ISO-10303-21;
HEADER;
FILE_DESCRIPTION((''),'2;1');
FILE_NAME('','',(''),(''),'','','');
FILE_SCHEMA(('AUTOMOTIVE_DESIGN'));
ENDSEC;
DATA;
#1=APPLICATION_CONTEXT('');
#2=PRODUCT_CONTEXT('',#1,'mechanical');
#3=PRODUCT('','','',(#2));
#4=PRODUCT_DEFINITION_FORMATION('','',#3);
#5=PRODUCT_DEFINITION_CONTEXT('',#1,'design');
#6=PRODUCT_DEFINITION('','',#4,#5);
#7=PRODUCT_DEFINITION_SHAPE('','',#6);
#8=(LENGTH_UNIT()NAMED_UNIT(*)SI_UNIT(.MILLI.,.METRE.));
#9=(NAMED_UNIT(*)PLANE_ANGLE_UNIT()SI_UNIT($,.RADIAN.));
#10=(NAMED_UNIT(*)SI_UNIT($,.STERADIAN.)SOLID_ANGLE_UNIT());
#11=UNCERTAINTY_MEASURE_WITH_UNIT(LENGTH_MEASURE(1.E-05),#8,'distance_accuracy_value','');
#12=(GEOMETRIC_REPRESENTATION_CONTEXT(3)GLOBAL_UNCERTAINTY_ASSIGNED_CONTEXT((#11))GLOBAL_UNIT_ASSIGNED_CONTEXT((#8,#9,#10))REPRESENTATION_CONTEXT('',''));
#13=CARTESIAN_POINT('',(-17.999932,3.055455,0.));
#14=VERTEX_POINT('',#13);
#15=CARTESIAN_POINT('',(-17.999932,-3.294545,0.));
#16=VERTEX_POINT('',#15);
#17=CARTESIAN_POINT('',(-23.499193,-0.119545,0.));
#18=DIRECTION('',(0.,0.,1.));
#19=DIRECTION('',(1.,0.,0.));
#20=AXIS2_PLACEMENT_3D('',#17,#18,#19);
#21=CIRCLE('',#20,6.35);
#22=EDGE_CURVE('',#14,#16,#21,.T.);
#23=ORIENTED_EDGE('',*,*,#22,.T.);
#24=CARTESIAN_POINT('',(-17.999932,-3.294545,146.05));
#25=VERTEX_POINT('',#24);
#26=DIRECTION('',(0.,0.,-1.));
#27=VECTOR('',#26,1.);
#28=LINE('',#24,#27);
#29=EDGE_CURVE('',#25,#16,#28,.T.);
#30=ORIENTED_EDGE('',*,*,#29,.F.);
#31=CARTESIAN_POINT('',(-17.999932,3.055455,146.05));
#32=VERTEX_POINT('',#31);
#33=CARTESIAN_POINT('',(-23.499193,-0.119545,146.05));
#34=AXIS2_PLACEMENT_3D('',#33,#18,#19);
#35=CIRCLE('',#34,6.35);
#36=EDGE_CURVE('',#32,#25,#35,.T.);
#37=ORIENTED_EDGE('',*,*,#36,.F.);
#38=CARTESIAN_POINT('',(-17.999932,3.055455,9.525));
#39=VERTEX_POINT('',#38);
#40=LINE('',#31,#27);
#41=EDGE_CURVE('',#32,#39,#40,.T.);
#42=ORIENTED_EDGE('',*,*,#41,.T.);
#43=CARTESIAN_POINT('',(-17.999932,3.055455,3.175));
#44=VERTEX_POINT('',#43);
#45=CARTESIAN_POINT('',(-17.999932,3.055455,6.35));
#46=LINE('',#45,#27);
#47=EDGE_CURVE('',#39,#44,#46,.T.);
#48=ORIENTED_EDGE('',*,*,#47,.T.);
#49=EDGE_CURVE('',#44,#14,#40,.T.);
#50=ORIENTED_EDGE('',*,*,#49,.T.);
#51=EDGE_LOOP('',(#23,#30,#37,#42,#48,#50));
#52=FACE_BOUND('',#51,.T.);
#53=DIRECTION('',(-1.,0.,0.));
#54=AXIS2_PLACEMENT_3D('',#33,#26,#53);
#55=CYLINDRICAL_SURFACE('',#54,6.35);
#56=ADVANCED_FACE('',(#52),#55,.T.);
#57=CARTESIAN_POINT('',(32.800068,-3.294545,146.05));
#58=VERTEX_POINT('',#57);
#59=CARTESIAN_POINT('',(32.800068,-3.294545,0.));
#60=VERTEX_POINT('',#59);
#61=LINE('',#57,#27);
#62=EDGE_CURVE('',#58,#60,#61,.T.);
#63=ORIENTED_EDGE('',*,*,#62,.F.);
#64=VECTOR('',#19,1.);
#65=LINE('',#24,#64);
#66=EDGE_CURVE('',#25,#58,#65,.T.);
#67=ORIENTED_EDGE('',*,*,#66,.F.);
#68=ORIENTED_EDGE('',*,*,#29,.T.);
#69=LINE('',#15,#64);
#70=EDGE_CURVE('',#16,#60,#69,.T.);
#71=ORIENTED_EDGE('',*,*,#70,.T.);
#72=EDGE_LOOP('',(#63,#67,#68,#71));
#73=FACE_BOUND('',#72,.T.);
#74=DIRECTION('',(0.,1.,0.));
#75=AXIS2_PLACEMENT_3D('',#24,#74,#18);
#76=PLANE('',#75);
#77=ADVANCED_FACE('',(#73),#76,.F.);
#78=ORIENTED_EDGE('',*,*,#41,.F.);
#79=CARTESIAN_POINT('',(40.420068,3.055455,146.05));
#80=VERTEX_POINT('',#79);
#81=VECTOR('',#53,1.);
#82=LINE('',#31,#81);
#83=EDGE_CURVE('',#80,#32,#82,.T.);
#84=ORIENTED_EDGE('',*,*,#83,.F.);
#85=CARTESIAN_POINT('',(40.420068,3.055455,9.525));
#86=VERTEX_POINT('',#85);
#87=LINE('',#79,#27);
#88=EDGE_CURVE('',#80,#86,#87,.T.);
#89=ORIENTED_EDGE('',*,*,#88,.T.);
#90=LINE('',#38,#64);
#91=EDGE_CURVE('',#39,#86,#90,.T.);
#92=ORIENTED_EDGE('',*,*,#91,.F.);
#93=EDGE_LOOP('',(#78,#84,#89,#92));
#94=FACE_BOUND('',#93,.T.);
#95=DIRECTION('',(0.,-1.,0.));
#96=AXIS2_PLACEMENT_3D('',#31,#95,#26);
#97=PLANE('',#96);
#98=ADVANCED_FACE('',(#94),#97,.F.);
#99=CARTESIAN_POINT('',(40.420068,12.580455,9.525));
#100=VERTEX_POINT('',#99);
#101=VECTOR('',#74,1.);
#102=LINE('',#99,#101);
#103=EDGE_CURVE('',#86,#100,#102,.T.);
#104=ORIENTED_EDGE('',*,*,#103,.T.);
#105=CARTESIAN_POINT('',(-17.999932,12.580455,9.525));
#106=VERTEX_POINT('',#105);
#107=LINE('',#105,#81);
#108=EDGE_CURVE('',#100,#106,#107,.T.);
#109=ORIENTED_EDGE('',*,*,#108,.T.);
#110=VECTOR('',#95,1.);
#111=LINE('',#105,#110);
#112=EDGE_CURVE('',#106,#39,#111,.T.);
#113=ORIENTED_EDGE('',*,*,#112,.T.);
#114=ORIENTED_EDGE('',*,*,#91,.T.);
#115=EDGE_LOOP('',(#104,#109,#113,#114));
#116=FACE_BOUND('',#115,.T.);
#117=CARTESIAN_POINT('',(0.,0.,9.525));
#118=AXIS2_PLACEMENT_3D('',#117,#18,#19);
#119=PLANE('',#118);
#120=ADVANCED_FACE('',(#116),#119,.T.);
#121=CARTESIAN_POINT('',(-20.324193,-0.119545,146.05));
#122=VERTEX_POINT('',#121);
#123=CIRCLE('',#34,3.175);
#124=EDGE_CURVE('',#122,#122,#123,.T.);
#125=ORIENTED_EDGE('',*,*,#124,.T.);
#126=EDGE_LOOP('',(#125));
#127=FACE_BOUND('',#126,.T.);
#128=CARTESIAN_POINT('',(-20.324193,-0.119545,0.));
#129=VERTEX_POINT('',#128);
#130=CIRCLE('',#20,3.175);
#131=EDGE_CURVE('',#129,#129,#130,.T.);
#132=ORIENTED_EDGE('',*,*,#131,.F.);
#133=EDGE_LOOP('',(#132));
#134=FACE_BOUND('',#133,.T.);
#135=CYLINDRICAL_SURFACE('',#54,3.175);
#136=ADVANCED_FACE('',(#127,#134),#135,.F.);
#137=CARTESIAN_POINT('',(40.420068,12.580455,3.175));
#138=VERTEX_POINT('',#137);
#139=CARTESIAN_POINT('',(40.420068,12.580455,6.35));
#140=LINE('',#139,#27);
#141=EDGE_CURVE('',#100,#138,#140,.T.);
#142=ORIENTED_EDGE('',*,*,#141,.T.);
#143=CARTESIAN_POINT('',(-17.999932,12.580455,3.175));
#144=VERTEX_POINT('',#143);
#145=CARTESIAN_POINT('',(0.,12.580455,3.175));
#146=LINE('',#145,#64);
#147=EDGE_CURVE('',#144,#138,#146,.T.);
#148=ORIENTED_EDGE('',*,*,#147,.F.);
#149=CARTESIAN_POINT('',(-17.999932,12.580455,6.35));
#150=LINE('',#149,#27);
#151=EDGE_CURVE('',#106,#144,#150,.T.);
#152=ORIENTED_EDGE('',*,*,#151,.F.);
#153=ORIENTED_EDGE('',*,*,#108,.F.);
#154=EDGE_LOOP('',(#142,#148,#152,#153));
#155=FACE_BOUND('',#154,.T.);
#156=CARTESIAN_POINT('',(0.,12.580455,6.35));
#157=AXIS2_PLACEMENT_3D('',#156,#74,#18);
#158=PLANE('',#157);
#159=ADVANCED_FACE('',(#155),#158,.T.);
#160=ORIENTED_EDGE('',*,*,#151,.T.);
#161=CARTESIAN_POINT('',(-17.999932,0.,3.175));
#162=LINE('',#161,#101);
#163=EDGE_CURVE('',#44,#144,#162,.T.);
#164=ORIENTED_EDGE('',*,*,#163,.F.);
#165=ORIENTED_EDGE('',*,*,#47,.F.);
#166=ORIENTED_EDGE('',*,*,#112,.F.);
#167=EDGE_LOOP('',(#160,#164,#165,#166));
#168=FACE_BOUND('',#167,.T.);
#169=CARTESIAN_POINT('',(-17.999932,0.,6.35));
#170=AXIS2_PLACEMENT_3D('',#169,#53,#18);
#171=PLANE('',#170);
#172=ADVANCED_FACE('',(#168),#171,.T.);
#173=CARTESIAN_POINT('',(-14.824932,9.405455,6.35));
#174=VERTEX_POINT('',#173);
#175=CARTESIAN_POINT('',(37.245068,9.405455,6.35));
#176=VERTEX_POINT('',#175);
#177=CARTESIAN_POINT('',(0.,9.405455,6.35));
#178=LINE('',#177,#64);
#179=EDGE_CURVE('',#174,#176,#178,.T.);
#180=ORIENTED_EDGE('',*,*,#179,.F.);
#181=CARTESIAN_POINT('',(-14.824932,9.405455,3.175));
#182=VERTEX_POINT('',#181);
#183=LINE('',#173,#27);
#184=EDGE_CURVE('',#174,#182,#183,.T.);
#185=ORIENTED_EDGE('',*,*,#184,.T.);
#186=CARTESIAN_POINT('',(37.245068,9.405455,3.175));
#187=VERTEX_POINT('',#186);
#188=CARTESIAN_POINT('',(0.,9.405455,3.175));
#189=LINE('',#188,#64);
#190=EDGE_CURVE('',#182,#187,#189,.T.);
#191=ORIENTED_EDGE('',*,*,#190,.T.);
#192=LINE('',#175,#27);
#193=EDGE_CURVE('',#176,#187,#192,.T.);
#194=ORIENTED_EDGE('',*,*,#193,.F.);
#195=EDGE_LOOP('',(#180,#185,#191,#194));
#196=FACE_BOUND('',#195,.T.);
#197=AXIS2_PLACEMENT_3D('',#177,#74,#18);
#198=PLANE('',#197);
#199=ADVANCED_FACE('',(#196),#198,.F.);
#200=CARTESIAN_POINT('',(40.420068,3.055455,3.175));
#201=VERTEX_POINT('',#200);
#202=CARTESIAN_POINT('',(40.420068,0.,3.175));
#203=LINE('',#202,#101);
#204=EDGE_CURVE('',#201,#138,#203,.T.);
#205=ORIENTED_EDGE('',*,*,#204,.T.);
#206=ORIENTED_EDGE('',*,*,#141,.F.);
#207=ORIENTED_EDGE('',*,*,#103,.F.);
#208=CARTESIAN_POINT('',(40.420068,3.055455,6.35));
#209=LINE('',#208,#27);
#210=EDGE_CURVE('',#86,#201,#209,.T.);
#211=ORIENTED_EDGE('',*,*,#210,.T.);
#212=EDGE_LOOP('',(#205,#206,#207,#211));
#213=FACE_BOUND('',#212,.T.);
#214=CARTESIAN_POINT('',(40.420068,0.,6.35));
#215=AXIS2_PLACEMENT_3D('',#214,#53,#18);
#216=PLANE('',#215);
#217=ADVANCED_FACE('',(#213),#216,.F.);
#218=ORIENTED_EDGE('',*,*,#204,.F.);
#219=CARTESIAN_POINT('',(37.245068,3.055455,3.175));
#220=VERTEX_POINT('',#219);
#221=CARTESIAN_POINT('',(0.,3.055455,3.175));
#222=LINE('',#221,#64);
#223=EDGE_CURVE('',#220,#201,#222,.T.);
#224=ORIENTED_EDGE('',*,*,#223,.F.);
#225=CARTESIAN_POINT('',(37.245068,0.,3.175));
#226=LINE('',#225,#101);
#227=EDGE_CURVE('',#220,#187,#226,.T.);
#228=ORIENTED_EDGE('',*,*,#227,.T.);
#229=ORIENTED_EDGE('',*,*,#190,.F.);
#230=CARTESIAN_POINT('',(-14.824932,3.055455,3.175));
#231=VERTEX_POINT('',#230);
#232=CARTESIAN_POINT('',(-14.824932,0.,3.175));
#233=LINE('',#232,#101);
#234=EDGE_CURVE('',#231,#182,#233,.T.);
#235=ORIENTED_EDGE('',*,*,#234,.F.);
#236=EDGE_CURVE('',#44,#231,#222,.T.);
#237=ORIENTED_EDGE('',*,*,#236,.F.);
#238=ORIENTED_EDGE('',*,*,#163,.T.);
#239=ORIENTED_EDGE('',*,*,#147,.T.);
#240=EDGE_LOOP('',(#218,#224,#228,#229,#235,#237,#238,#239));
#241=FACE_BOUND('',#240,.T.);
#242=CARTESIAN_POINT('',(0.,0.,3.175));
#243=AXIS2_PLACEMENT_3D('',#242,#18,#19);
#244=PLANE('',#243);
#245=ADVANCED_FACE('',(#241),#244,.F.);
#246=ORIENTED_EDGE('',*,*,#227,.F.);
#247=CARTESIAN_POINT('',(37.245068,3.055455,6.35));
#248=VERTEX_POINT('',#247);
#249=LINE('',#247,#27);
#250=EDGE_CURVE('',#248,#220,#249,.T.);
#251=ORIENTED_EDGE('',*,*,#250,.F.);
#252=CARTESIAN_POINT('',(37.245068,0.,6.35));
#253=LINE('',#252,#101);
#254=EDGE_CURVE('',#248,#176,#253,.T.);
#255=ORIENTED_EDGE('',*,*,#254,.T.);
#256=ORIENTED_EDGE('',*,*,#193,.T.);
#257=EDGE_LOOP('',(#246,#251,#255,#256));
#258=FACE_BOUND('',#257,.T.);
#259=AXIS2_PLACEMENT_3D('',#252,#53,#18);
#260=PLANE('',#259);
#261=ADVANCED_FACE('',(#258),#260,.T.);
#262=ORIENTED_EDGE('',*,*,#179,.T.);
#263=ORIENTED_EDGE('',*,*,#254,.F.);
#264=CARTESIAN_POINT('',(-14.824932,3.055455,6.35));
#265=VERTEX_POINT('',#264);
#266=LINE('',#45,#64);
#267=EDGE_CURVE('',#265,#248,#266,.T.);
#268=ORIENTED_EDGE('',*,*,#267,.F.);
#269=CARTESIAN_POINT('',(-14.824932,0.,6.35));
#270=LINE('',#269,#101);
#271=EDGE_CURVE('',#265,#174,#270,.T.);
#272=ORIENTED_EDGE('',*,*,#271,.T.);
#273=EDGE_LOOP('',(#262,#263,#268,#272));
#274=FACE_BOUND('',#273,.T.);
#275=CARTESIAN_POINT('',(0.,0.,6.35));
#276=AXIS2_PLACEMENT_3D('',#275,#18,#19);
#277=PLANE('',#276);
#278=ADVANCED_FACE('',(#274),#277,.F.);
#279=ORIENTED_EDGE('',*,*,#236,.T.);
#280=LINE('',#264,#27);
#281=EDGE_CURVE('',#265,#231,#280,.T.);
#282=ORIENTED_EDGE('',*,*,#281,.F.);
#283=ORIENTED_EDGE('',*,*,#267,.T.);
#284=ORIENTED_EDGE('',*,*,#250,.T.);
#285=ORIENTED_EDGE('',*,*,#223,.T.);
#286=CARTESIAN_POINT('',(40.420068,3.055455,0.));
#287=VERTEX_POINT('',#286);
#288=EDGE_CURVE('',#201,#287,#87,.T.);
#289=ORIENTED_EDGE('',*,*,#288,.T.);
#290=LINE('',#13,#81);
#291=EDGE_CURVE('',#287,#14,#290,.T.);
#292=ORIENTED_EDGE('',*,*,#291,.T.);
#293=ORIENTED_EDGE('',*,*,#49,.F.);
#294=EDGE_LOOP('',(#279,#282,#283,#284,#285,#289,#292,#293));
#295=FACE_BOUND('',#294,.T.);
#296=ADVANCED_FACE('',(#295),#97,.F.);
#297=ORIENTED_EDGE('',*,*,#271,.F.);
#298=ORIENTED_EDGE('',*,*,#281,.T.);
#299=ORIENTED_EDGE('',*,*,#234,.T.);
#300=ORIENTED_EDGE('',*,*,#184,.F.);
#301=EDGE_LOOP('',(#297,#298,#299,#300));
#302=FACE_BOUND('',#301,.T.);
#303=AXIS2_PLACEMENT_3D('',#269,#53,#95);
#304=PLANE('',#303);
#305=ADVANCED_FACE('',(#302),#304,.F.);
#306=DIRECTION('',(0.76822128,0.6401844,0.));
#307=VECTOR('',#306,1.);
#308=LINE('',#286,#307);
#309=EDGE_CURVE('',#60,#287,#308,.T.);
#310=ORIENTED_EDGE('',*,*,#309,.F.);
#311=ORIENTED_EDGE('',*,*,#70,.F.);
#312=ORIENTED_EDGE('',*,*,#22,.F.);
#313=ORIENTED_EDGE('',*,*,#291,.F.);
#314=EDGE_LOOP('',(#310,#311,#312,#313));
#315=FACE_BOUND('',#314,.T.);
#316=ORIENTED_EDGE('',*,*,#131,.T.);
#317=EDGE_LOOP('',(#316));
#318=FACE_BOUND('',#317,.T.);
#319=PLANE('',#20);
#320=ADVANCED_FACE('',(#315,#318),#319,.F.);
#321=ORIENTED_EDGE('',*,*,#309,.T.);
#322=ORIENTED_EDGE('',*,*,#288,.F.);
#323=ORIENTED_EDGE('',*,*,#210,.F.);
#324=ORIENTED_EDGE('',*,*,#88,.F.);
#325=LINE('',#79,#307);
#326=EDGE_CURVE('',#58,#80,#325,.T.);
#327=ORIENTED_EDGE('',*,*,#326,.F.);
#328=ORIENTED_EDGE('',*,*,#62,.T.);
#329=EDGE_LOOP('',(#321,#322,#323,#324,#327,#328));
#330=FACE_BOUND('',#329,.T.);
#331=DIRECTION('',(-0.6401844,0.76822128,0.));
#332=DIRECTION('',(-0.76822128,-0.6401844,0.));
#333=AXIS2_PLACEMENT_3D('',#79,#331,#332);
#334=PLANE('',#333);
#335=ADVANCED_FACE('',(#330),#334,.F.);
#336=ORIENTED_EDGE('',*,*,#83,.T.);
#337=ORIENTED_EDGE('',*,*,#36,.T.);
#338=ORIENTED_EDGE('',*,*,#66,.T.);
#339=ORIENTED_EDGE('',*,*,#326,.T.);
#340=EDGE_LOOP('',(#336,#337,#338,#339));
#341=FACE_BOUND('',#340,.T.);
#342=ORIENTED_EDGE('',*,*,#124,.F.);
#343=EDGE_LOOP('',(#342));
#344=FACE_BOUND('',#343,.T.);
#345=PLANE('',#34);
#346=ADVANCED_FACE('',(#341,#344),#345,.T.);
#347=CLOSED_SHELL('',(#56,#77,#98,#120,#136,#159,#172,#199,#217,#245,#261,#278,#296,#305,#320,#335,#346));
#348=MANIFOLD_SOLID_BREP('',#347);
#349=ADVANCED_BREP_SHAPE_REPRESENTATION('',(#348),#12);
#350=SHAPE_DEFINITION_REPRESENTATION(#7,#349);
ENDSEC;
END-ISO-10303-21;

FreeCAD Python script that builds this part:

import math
import FreeCAD as App
import Part
import Sketcher

V = App.Vector
Q = App.Units.Quantity

doc = App.newDocument("Part")
body = doc.addObject("PartDesign::Body", "Body")

# Sketch on XY plane
sketch1 = body.newObject("Sketcher::SketchObject", "Sketch")
sketch1.AttachmentSupport = (doc.getObject("XY_Plane"), [""])
sketch1.MapMode = "FlatFace"
sketch1.addGeometry(Part.LineSegment(V(32.8, -3.3, 0), V(40.4, 3.1, 0)), False)
sketch1.addGeometry(Part.LineSegment(V(40.4, 3.1, 0), V(-18, 3.1, 0)), False)
sketch1.addGeometry(Part.ArcOfCircle(Part.Circle(V(-23.5, -0.1, 0), V(0, 0, 1), 6.3), math.radians(30), math.radians(330)), False)
sketch1.addGeometry(Part.LineSegment(V(-18, -3.3, 0), V(32.8, -3.3, 0)), False)
sketch1.addGeometry(Part.Circle(V(-23.5, -0.1, 0), V(0, 0, 1), 3.2), False)
sketch1.addConstraint(Sketcher.Constraint("Coincident", 0, 2, 1, 1))
sketch1.addConstraint(Sketcher.Constraint("Coincident", 1, 2, 2, 1))
sketch1.addConstraint(Sketcher.Constraint("Coincident", 2, 2, 3, 1))
sketch1.addConstraint(Sketcher.Constraint("Coincident", 3, 2, 0, 1))
sketch1.addConstraint(Sketcher.Constraint("Horizontal", 1))
sketch1.addConstraint(Sketcher.Constraint("Horizontal", 3))
sketch1.addConstraint(Sketcher.Constraint("Coincident", 4, 3, 2, 3))
sketch1.addConstraint(Sketcher.Constraint("Vertical", 1, 2, 2, 2))
sketch1.addConstraint(Sketcher.Constraint("Diameter", 4, Q("0.25 in")))
sketch1.addConstraint(Sketcher.Constraint("DistanceX", 3, 1, 3, 2, Q("2 in")))
sketch1.addConstraint(Sketcher.Constraint("Radius", 2, Q("0.25 in")))
sketch1.addConstraint(Sketcher.Constraint("DistanceX", 1, 2, 1, 1, Q("2.3 in")))
sketch1.addConstraint(Sketcher.Constraint("DistanceY", 2, 2, 1, 2, Q("0.25 in")))
sketch1.addConstraint(Sketcher.Constraint("DistanceX", -1, 1, 0, 2, Q("40.420068 mm")))
sketch1.addConstraint(Sketcher.Constraint("DistanceY", 2, 3, -1, 1, Q("0.119545 mm")))
pad1 = body.newObject("PartDesign::Pad", "Pad")
pad1.Profile = sketch1
pad1.Length = Q("5.75 in")

# Sketch on XY plane
sketch2 = body.newObject("Sketcher::SketchObject", "Sketch001")
sketch2.AttachmentSupport = (doc.getObject("XY_Plane"), [""])
sketch2.MapMode = "FlatFace"
sketch2.AttachmentOffset = App.Placement(V(0, 0, 0.125 * 25.4), App.Rotation())
sketch2.addGeometry(Part.LineSegment(V(-18, 3.1, 0), V(-14.8, 3.1, 0)), False)
sketch2.addGeometry(Part.LineSegment(V(-14.8, 3.1, 0), V(-14.8, 9.4, 0)), False)
sketch2.addGeometry(Part.LineSegment(V(-14.8, 9.4, 0), V(37.2, 9.4, 0)), False)
sketch2.addGeometry(Part.LineSegment(V(37.2, 9.4, 0), V(37.2, 3.1, 0)), False)
sketch2.addGeometry(Part.LineSegment(V(37.2, 3.1, 0), V(40.4, 3.1, 0)), False)
sketch2.addGeometry(Part.LineSegment(V(40.4, 3.1, 0), V(40.4, 12.6, 0)), False)
sketch2.addGeometry(Part.LineSegment(V(40.4, 12.6, 0), V(-18, 12.6, 0)), False)
sketch2.addGeometry(Part.LineSegment(V(-18, 12.6, 0), V(-18, 3.1, 0)), False)
sketch2.addConstraint(Sketcher.Constraint("Coincident", 0, 2, 1, 1))
sketch2.addConstraint(Sketcher.Constraint("Coincident", 1, 2, 2, 1))
sketch2.addConstraint(Sketcher.Constraint("Coincident", 2, 2, 3, 1))
sketch2.addConstraint(Sketcher.Constraint("Coincident", 3, 2, 4, 1))
sketch2.addConstraint(Sketcher.Constraint("Coincident", 4, 2, 5, 1))
sketch2.addConstraint(Sketcher.Constraint("Coincident", 5, 2, 6, 1))
sketch2.addConstraint(Sketcher.Constraint("Coincident", 6, 2, 7, 1))
sketch2.addConstraint(Sketcher.Constraint("Coincident", 7, 2, 0, 1))
sketch2.addConstraint(Sketcher.Constraint("Horizontal", 0))
sketch2.addConstraint(Sketcher.Constraint("Vertical", 1))
sketch2.addConstraint(Sketcher.Constraint("Horizontal", 2))
sketch2.addConstraint(Sketcher.Constraint("Vertical", 3))
sketch2.addConstraint(Sketcher.Constraint("Horizontal", 4))
sketch2.addConstraint(Sketcher.Constraint("Vertical", 5))
sketch2.addConstraint(Sketcher.Constraint("Horizontal", 6))
sketch2.addConstraint(Sketcher.Constraint("Vertical", 7))
sketch2.addConstraint(Sketcher.Constraint("Horizontal", 0, 2, 3, 2))
sketch2.addConstraint(Sketcher.Constraint("Equal", 0, 4))
sketch2.addConstraint(Sketcher.Constraint("DistanceX", 6, 2, 6, 1, Q("2.3 in")))
sketch2.addConstraint(Sketcher.Constraint("DistanceX", 2, 1, 2, 2, Q("2.05 in")))
sketch2.addConstraint(Sketcher.Constraint("DistanceY", 1, 1, 1, 2, Q("0.25 in")))
sketch2.addConstraint(Sketcher.Constraint("DistanceY", 5, 1, 5, 2, Q("0.375 in")))
sketch2.addConstraint(Sketcher.Constraint("DistanceX", 0, 2, -1, 1, Q("14.824932 mm")))
sketch2.addConstraint(Sketcher.Constraint("DistanceY", -1, 1, 0, 2, Q("3.055455 mm")))
pad2 = body.newObject("PartDesign::Pad", "Pad001")
pad2.Profile = sketch2
pad2.Length = Q("0.125 in")

# Sketch on XY plane
sketch3 = body.newObject("Sketcher::SketchObject", "Sketch002")
sketch3.AttachmentSupport = (doc.getObject("XY_Plane"), [""])
sketch3.MapMode = "FlatFace"
sketch3.AttachmentOffset = App.Placement(V(0, 0, 0.25 * 25.4), App.Rotation())
sketch3.addGeometry(Part.LineSegment(V(-18, 13, 0), V(-18, 3, 0)), False)
sketch3.addGeometry(Part.LineSegment(V(-18, 3, 0), V(40, 3, 0)), False)
sketch3.addGeometry(Part.LineSegment(V(40, 3, 0), V(40, 13, 0)), False)
sketch3.addGeometry(Part.LineSegment(V(40, 13, 0), V(-18, 13, 0)), False)
sketch3.addConstraint(Sketcher.Constraint("Coincident", 0, 2, 1, 1))
sketch3.addConstraint(Sketcher.Constraint("Coincident", 1, 2, 2, 1))
sketch3.addConstraint(Sketcher.Constraint("Coincident", 2, 2, 3, 1))
sketch3.addConstraint(Sketcher.Constraint("Coincident", 3, 2, 0, 1))
sketch3.addConstraint(Sketcher.Constraint("Vertical", 0))
sketch3.addConstraint(Sketcher.Constraint("Horizontal", 1))
sketch3.addConstraint(Sketcher.Constraint("Vertical", 2))
sketch3.addConstraint(Sketcher.Constraint("Horizontal", 3))
sketch3.addConstraint(Sketcher.Constraint("DistanceX", 1, 1, 1, 2, Q("2.3 in")))
sketch3.addConstraint(Sketcher.Constraint("DistanceY", 0, 2, 0, 1, Q("0.375 in")))
sketch3.addConstraint(Sketcher.Constraint("DistanceX", 0, 2, -1, 1, Q("17.999932 mm")))
sketch3.addConstraint(Sketcher.Constraint("DistanceY", -1, 1, 0, 2, Q("3.055455 mm")))
pad3 = body.newObject("PartDesign::Pad", "Pad002")
pad3.Profile = sketch3
pad3.Length = Q("0.125 in")

doc.recompute()
